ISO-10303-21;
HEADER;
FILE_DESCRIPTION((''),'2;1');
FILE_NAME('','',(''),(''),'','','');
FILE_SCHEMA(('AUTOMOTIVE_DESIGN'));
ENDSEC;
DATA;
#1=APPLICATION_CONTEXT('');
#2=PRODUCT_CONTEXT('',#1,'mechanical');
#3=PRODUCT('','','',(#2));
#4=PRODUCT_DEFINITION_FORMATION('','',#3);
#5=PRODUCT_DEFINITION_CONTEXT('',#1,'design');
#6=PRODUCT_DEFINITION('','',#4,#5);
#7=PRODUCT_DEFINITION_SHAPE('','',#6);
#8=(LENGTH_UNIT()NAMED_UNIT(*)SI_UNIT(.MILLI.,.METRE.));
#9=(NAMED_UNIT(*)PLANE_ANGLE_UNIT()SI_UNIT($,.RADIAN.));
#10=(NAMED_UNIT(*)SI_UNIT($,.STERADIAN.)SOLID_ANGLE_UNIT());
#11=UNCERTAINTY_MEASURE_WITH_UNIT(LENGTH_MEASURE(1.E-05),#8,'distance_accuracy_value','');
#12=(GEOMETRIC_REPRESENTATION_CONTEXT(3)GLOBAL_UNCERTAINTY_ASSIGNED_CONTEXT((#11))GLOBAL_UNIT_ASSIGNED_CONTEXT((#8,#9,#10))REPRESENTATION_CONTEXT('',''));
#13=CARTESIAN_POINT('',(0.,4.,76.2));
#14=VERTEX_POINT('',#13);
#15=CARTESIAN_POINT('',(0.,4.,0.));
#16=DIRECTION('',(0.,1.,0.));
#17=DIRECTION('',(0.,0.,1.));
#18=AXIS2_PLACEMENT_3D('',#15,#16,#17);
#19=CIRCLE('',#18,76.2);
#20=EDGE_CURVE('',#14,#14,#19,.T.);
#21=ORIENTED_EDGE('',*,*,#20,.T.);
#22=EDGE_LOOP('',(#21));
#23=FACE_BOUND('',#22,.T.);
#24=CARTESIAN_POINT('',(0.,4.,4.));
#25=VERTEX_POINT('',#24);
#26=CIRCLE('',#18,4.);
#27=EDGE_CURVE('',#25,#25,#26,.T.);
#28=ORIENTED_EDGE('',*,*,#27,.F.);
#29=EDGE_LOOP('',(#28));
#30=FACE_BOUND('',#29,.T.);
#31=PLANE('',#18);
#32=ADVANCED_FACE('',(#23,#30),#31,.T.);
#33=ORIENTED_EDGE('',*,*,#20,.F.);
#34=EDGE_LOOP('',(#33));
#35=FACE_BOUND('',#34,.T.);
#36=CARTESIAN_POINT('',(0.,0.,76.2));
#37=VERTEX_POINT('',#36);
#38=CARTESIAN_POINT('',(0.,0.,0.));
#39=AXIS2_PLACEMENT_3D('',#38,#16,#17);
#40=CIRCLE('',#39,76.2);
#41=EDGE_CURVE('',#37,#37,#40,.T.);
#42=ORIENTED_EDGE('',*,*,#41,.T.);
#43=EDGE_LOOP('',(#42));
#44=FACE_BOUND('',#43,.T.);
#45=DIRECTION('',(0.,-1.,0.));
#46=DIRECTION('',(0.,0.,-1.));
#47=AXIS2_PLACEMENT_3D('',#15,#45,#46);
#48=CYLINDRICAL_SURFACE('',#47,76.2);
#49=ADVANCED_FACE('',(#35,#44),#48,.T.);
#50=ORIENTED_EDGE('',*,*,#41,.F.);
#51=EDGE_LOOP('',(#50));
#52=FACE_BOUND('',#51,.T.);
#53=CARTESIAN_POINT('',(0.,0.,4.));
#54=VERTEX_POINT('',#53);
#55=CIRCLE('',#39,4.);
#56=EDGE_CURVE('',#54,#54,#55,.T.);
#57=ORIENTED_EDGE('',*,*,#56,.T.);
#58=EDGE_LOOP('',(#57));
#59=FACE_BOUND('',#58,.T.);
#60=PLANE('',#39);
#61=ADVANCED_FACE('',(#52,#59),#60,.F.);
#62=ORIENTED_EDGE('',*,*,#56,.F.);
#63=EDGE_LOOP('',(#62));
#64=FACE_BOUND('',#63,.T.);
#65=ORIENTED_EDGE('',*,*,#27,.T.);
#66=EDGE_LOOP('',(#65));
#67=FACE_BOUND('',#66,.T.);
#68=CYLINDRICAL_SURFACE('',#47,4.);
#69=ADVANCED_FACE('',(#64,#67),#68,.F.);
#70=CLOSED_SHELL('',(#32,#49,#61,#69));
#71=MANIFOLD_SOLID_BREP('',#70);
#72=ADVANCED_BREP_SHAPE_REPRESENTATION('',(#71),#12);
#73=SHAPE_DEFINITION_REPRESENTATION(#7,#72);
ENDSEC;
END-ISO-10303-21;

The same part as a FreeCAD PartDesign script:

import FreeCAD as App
import Part
import Sketcher
from FreeCAD import Vector
Q = App.Units.Quantity

doc = App.newDocument("Part")
body = doc.addObject("PartDesign::Body", "Body")

# Sketch on XZ plane
sketch1 = body.newObject("Sketcher::SketchObject", "Sketch")
sketch1.AttachmentSupport = (doc.getObject("XZ_Plane"), [""])
sketch1.MapMode = "FlatFace"
sketch1.addGeometry([
    Part.Circle(Vector(0, 0, 0), Vector(0, 0, 1), 76.2),
    Part.Circle(Vector(0, 0, 0), Vector(0, 0, 1), 4),
], False)
sketch1.addConstraint([
    Sketcher.Constraint("Coincident", 0, 3, -1, 1),
    Sketcher.Constraint("Coincident", 1, 3, -1, 1),
    Sketcher.Constraint("Diameter", 1, Q("8 mm")),
    Sketcher.Constraint("Diameter", 0, Q("152.4 mm")),
])
pad1 = body.newObject("PartDesign::Pad", "Pad")
pad1.Profile = sketch1
pad1.Length = 4
pad1.Reversed = True

doc.recompute()
